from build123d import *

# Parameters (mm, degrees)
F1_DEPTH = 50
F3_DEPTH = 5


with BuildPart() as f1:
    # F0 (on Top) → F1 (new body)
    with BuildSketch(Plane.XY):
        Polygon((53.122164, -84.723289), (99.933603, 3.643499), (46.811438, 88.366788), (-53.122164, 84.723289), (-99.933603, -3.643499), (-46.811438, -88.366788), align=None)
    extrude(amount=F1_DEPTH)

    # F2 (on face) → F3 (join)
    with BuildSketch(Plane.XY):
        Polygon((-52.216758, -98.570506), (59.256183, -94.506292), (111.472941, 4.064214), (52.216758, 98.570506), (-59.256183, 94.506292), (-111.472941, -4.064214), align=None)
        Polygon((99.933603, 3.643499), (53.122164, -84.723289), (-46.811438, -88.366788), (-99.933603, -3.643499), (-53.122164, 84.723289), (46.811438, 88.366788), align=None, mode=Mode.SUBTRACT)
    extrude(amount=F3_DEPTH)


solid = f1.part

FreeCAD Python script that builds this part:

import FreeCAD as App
import Part
import Sketcher
from FreeCAD import Vector
Q = App.Units.Quantity

doc = App.newDocument("Part")
body = doc.addObject("PartDesign::Body", "Body")

# Sketch on XY plane
sketch1 = doc.addObject("Sketcher::SketchObject", "Sketch")
body.addObject(sketch1)
sketch1.AttachmentSupport = (doc.XY_Plane, [""])
sketch1.MapMode = "FlatFace"
sketch1.addGeometry([
    Part.LineSegment(Vector(53.122164, -84.723289, 0), Vector(99.933603, 3.643499, 0)),  # 0
    Part.LineSegment(Vector(99.933603, 3.643499, 0), Vector(46.811438, 88.366788, 0)),  # 1
    Part.LineSegment(Vector(46.811438, 88.366788, 0), Vector(-53.122164, 84.723289, 0)),  # 2
    Part.LineSegment(Vector(-53.122164, 84.723289, 0), Vector(-99.933603, -3.643499, 0)),  # 3
    Part.LineSegment(Vector(-99.933603, -3.643499, 0), Vector(-46.811438, -88.366788, 0)),  # 4
    Part.LineSegment(Vector(-46.811438, -88.366788, 0), Vector(53.122164, -84.723289, 0)),  # 5
], False)
sketch1.addConstraint([
    Sketcher.Constraint("Coincident", 0, 2, 1, 1),
    Sketcher.Constraint("Coincident", 1, 2, 2, 1),
    Sketcher.Constraint("Coincident", 2, 2, 3, 1),
    Sketcher.Constraint("Coincident", 3, 2, 4, 1),
    Sketcher.Constraint("Coincident", 4, 2, 5, 1),
    Sketcher.Constraint("Coincident", 5, 2, 0, 1),
    Sketcher.Constraint("Symmetric", 0, 2, 3, 2, -1, 1),
    Sketcher.Constraint("Symmetric", 1, 2, 4, 2, -1, 1),
    Sketcher.Constraint("Symmetric", 2, 2, 5, 2, -1, 1),
    Sketcher.Constraint("Equal", 0, 1),
    Sketcher.Constraint("Equal", 1, 2),
    Sketcher.Constraint("Distance", 0, Q("100 mm")),
    Sketcher.Constraint("DistanceY", -1, 1, 0, 2, Q("3.643499 mm")),
    Sketcher.Constraint("DistanceY", 2, 2, 1, 2, Q("3.643499 mm")),
    Sketcher.Constraint("DistanceX", -1, 1, 1, 2, Q("46.811438 mm")),
])
pad1 = doc.addObject("PartDesign::Pad", "Pad")
body.addObject(pad1)
pad1.Profile = sketch1
pad1.Length = 50

# Sketch on XY plane
sketch2 = doc.addObject("Sketcher::SketchObject", "Sketch001")
body.addObject(sketch2)
sketch2.AttachmentSupport = (doc.XY_Plane, [""])
sketch2.MapMode = "FlatFace"
sketch2.addGeometry([
    Part.LineSegment(Vector(-52.216758, -98.570506, 0), Vector(59.256183, -94.506292, 0)),  # 0
    Part.LineSegment(Vector(59.256183, -94.506292, 0), Vector(111.472941, 4.064214, 0)),  # 1
    Part.LineSegment(Vector(111.472941, 4.064214, 0), Vector(52.216758, 98.570506, 0)),  # 2
    Part.LineSegment(Vector(52.216758, 98.570506, 0), Vector(-59.256183, 94.506292, 0)),  # 3
    Part.LineSegment(Vector(-59.256183, 94.506292, 0), Vector(-111.472941, -4.064214, 0)),  # 4
    Part.LineSegment(Vector(-111.472941, -4.064214, 0), Vector(-52.216758, -98.570506, 0)),  # 5
    Part.LineSegment(Vector(46.811438, 88.366788, 0), Vector(99.933603, 3.643499, 0)),  # 6
    Part.LineSegment(Vector(99.933603, 3.643499, 0), Vector(53.122164, -84.723289, 0)),  # 7
    Part.LineSegment(Vector(53.122164, -84.723289, 0), Vector(-46.811438, -88.366788, 0)),  # 8
    Part.LineSegment(Vector(-46.811438, -88.366788, 0), Vector(-99.933603, -3.643499, 0)),  # 9
    Part.LineSegment(Vector(-99.933603, -3.643499, 0), Vector(-53.122164, 84.723289, 0)),  # 10
    Part.LineSegment(Vector(-53.122164, 84.723289, 0), Vector(46.811438, 88.366788, 0)),  # 11
], False)
sketch2.addConstraint([
    Sketcher.Constraint("Coincident", 0, 2, 1, 1),
    Sketcher.Constraint("Coincident", 1, 2, 2, 1),
    Sketcher.Constraint("Coincident", 2, 2, 3, 1),
    Sketcher.Constraint("Coincident", 3, 2, 4, 1),
    Sketcher.Constraint("Coincident", 4, 2, 5, 1),
    Sketcher.Constraint("Coincident", 5, 2, 0, 1),
    Sketcher.Constraint("Coincident", 6, 2, 7, 1),
    Sketcher.Constraint("Coincident", 7, 2, 8, 1),
    Sketcher.Constraint("Coincident", 8, 2, 9, 1),
    Sketcher.Constraint("Coincident", 9, 2, 10, 1),
    Sketcher.Constraint("Coincident", 10, 2, 11, 1),
    Sketcher.Constraint("Coincident", 11, 2, 6, 1),
    Sketcher.Constraint("Symmetric", 0, 2, 3, 2, -1, 1),
    Sketcher.Constraint("Symmetric", 1, 2, 4, 2, -1, 1),
    Sketcher.Constraint("Symmetric", 2, 2, 5, 2, -1, 1),
    Sketcher.Constraint("Symmetric", 6, 2, 9, 2, -1, 1),
    Sketcher.Constraint("Symmetric", 7, 2, 10, 2, -1, 1),
    Sketcher.Constraint("Symmetric", 8, 2, 11, 2, -1, 1),
    Sketcher.Constraint("Parallel", 5, 6),
    Sketcher.Constraint("Parallel", 4, 7),
    Sketcher.Constraint("Parallel", 3, 8),
    Sketcher.Constraint("Equal", 0, 1),
    Sketcher.Constraint("Equal", 1, 2),
    Sketcher.Constraint("Equal", 6, 7),
    Sketcher.Constraint("Equal", 7, 8),
    Sketcher.Constraint("Distance", 6, Q("100.000001 mm")),
    Sketcher.Constraint("DistanceY", -1, 1, 6, 2, Q("3.643499 mm")),
    Sketcher.Constraint("DistanceY", 0, 2, 2, 2, Q("193.076798 mm")),
    Sketcher.Constraint("DistanceX", 4, 2, 2, 2, Q("163.689699 mm")),
    Sketcher.Constraint("DistanceY", 8, 2, 7, 2, Q("3.643499 mm")),
])
pad2 = doc.addObject("PartDesign::Pad", "Pad001")
body.addObject(pad2)
pad2.Profile = sketch2
pad2.Length = 5

doc.recompute()
